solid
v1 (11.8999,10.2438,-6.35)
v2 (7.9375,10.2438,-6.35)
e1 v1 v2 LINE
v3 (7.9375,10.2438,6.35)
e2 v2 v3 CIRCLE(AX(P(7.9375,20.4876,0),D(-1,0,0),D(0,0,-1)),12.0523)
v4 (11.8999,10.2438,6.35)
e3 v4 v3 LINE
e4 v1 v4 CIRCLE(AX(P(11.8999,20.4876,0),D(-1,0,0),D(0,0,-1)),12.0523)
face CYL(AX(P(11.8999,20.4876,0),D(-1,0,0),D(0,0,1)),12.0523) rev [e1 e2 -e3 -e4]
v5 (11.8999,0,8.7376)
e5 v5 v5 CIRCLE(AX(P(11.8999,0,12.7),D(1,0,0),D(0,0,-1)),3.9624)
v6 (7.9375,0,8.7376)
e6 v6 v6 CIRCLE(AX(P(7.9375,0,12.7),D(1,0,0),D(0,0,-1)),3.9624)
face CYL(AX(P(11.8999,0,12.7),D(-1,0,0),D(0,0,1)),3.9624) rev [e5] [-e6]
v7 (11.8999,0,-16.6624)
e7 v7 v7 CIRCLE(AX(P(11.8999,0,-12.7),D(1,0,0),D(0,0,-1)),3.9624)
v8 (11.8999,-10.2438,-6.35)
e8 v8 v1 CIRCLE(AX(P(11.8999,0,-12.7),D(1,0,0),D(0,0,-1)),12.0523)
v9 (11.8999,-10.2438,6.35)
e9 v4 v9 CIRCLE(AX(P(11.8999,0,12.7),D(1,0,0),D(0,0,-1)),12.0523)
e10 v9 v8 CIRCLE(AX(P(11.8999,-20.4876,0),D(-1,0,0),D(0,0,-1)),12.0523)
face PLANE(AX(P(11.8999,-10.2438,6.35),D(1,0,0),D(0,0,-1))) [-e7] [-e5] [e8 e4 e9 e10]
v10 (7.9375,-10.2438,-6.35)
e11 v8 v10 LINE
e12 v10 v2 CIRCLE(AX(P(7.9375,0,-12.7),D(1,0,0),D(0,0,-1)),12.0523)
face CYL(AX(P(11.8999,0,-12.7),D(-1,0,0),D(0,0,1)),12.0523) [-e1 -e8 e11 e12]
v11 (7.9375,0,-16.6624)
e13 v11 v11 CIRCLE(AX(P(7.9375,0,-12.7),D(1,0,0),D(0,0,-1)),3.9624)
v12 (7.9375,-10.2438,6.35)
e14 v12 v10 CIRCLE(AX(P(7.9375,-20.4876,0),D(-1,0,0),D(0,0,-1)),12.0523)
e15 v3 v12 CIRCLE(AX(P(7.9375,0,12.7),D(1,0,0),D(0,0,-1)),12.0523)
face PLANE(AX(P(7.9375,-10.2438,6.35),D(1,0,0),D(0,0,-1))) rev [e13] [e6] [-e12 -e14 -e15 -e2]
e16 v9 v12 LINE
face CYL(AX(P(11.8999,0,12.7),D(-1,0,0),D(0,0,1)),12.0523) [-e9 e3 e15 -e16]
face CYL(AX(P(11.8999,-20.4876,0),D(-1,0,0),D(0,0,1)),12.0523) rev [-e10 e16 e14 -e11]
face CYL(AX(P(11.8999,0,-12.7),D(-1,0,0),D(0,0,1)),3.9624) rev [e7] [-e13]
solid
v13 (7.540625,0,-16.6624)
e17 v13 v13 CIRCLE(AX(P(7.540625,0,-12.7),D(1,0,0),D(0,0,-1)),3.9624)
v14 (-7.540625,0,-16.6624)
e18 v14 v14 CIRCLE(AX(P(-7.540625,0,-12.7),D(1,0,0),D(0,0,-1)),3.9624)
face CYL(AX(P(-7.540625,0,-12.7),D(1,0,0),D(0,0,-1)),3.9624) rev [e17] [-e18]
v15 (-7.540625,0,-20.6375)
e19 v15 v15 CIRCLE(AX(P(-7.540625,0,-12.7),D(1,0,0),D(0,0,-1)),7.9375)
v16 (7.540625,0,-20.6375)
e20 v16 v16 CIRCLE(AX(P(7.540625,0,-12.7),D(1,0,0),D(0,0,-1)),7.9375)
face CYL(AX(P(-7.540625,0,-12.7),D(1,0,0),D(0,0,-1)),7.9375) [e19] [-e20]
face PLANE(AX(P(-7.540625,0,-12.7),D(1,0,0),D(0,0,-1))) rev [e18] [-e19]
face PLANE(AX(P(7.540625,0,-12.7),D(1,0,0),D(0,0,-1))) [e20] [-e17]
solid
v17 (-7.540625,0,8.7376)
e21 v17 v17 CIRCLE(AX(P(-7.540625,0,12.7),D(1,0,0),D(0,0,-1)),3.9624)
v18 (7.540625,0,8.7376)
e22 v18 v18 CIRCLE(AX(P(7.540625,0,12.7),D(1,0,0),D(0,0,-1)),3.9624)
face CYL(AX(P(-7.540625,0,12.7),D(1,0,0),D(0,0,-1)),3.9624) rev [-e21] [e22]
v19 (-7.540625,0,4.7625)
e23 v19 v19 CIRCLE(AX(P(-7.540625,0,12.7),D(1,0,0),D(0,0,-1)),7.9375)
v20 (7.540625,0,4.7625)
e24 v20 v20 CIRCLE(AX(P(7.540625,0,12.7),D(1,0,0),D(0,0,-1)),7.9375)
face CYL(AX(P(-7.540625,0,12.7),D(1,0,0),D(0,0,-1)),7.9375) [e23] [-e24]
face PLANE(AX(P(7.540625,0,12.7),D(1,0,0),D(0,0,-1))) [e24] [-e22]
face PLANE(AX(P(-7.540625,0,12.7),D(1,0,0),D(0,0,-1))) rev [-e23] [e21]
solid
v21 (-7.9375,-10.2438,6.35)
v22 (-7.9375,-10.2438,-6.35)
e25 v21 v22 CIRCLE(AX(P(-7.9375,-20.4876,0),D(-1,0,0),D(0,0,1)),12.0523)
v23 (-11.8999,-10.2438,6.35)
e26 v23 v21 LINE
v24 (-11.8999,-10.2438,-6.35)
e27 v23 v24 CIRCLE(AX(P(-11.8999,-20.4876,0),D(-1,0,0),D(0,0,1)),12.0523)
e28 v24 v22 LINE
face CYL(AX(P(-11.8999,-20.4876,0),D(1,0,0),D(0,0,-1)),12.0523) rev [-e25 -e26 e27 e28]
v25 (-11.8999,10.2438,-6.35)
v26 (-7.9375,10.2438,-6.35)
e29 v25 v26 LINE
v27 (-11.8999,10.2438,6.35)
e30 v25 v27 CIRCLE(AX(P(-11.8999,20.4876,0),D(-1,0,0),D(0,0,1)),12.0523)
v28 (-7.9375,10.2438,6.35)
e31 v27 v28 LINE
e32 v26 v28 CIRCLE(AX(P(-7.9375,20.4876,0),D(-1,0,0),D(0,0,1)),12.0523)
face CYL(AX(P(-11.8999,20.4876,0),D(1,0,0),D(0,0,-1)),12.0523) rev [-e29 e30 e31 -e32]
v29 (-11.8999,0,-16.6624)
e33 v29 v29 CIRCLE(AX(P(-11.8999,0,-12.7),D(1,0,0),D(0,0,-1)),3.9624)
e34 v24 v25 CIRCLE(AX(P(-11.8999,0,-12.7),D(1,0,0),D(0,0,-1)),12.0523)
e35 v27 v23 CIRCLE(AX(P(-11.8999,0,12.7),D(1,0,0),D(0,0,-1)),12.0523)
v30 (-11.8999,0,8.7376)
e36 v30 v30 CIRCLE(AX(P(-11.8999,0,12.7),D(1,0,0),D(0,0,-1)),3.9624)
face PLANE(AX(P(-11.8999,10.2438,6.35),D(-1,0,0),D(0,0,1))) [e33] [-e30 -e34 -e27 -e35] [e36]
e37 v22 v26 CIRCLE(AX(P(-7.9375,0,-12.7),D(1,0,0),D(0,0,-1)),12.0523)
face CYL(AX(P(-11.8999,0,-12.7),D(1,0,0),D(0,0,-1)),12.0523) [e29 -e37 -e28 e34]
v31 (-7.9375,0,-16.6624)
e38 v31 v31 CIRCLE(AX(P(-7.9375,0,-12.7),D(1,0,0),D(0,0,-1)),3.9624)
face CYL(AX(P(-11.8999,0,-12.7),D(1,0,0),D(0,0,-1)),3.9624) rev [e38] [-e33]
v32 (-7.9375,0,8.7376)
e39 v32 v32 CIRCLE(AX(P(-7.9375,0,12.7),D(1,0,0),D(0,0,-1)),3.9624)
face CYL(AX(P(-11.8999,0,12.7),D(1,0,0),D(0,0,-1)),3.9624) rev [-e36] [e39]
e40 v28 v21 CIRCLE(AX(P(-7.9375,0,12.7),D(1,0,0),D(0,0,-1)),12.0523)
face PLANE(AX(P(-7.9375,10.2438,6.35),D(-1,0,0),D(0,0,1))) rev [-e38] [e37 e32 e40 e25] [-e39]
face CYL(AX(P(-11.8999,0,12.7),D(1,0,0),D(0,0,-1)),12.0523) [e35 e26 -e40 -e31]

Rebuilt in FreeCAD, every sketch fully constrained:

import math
import FreeCAD as App
import Part
import Sketcher

V = App.Vector
Q = App.Units.Quantity

doc = App.newDocument("Part")
params = doc.addObject("Spreadsheet::Sheet", "Params")
for row, (alias, value) in enumerate([
    ("sketch1_diameter", "0.312 in"),
    ("pad1_length", "0.156 in"),
    ("sketch2_diameter", "0.312 in"),
    ("pad2_length", "0.156 in"),
    ("sketch3_diameter", "0.625 in"),
    ("sketch3_diameter2", "0.312 in"),
    ("pad3_length", "0.296875 in"),
    ("pad3_length2", "0.296875 in"),
    ("sketch4_diameter", "0.625 in"),
    ("sketch4_diameter2", "0.312 in"),
    ("pad4_length", "0.296875 in"),
    ("pad4_length2", "0.296875 in"),
], start=1):
    params.set(f"A{row}", alias)
    params.set(f"B{row}", "=" + value)
    params.setAlias(f"B{row}", alias)

body = doc.addObject("PartDesign::Body", "Body")

# Sketch on YZ plane
sketch1 = doc.addObject("Sketcher::SketchObject", "Sketch")
body.addObject(sketch1)
sketch1.AttachmentSupport = (doc.YZ_Plane, [""])
sketch1.MapMode = "FlatFace"
sketch1.AttachmentOffset = App.Placement(V(0, 0, -0.3125 * 25.4), App.Rotation())
sketch1.addGeometry([
    Part.ArcOfCircle(Part.Circle(V(0, 12.7, 0), V(0, 0, 1), 12.1), math.radians(-32), math.radians(212)),  # 0
    Part.ArcOfCircle(Part.Circle(V(-20.5, 0, 0), V(0, 0, 1), 12.1), math.radians(-32), math.radians(32)),  # 1
    Part.ArcOfCircle(Part.Circle(V(0, -12.7, 0), V(0, 0, 1), 12.1), math.radians(148), math.radians(392)),  # 2
    Part.ArcOfCircle(Part.Circle(V(20.5, 0, 0), V(0, 0, 1), 12.1), math.radians(148), math.radians(212)),  # 3
    Part.Circle(V(0, 12.7, 0), V(0, 0, 1), 4),  # 4
    Part.Circle(V(0, -12.7, 0), V(0, 0, 1), 4),  # 5
], False)
sketch1.addConstraint([
    Sketcher.Constraint("Tangent", 0, 2, 1, 2),
    Sketcher.Constraint("Tangent", 1, 1, 2, 1),
    Sketcher.Constraint("Tangent", 2, 2, 3, 2),
    Sketcher.Constraint("Tangent", 3, 1, 0, 1),
    Sketcher.Constraint("Coincident", 4, 3, 0, 3),
    Sketcher.Constraint("Coincident", 5, 3, 2, 3),
    Sketcher.Constraint("Equal", 0, 1),
    Sketcher.Constraint("Equal", 1, 2),
    Sketcher.Constraint("Equal", 2, 3),
    Sketcher.Constraint("Equal", 4, 5),
    Sketcher.Constraint("Symmetric", 0, 3, 2, 3, -1, 1),
    Sketcher.Constraint("PointOnObject", 0, 3, -2),
    Sketcher.Constraint("Diameter", 4, Q("0.312 in")),
    Sketcher.Constraint("DistanceY", 2, 3, 0, 3, Q("1 in")),
    Sketcher.Constraint("Radius", 0, Q("0.4745 in")),
])
sketch1.setExpression("Constraints[12]", "Params.sketch1_diameter")
pad1 = doc.addObject("PartDesign::Pad", "Pad")
body.addObject(pad1)
pad1.Profile = sketch1
pad1.setExpression("Length", "Params.pad1_length")
pad1.Reversed = True
body2 = doc.addObject("PartDesign::Body", "Body001")

# Sketch on YZ plane
sketch2 = doc.addObject("Sketcher::SketchObject", "Sketch001")
body2.addObject(sketch2)
sketch2.AttachmentSupport = (doc.getObject("YZ_Plane001"), [""])
sketch2.MapMode = "FlatFace"
sketch2.AttachmentOffset = App.Placement(V(0, 0, 0.3125 * 25.4), App.Rotation())
sketch2.addGeometry([
    Part.ArcOfCircle(Part.Circle(V(20.5, 0, 0), V(0, 0, 1), 12.1), math.radians(148), math.radians(212)),  # 0
    Part.ArcOfCircle(Part.Circle(V(0, 12.7, 0), V(0, 0, 1), 12.1), math.radians(-32), math.radians(212)),  # 1
    Part.ArcOfCircle(Part.Circle(V(-20.5, 0, 0), V(0, 0, 1), 12.1), math.radians(-32), math.radians(32)),  # 2
    Part.ArcOfCircle(Part.Circle(V(0, -12.7, 0), V(0, 0, 1), 12.1), math.radians(148), math.radians(392)),  # 3
    Part.Circle(V(0, -12.7, 0), V(0, 0, 1), 4),  # 4
    Part.Circle(V(0, 12.7, 0), V(0, 0, 1), 4),  # 5
], False)
sketch2.addConstraint([
    Sketcher.Constraint("Tangent", 0, 1, 1, 1),
    Sketcher.Constraint("Tangent", 1, 2, 2, 2),
    Sketcher.Constraint("Tangent", 2, 1, 3, 1),
    Sketcher.Constraint("Tangent", 3, 2, 0, 2),
    Sketcher.Constraint("Coincident", 4, 3, 3, 3),
    Sketcher.Constraint("Coincident", 5, 3, 1, 3),
    Sketcher.Constraint("Equal", 0, 1),
    Sketcher.Constraint("Equal", 1, 2),
    Sketcher.Constraint("Equal", 2, 3),
    Sketcher.Constraint("Equal", 4, 5),
    Sketcher.Constraint("Symmetric", 0, 3, 2, 3, -1, 1),
    Sketcher.Constraint("PointOnObject", 0, 3, -1),
    Sketcher.Constraint("Diameter", 4, Q("0.312 in")),
    Sketcher.Constraint("DistanceY", 3, 3, 1, 3, Q("1 in")),
    Sketcher.Constraint("Radius", 0, Q("0.4745 in")),
])
sketch2.setExpression("Constraints[12]", "Params.sketch2_diameter")
pad2 = doc.addObject("PartDesign::Pad", "Pad001")
body2.addObject(pad2)
pad2.Profile = sketch2
pad2.setExpression("Length", "Params.pad2_length")
body3 = doc.addObject("PartDesign::Body", "Body002")

# Sketch on YZ plane
sketch3 = doc.addObject("Sketcher::SketchObject", "Sketch002")
body3.addObject(sketch3)
sketch3.AttachmentSupport = (doc.getObject("YZ_Plane002"), [""])
sketch3.MapMode = "FlatFace"
sketch3.addGeometry([
    Part.Circle(V(0, -12.7, 0), V(0, 0, 1), 7.9),
    Part.Circle(V(0, -12.7, 0), V(0, 0, 1), 4),
], False)
sketch3.addConstraint([
    Sketcher.Constraint("Coincident", 1, 3, 0, 3),
    Sketcher.Constraint("PointOnObject", 0, 3, -2),
    Sketcher.Constraint("Diameter", 0, Q("0.625 in")),
    Sketcher.Constraint("Diameter", 1, Q("0.312 in")),
    Sketcher.Constraint("DistanceY", 0, 3, -1, 1, Q("0.5 in")),
])
sketch3.setExpression("Constraints[2]", "Params.sketch3_diameter")
sketch3.setExpression("Constraints[3]", "Params.sketch3_diameter2")
pad3 = doc.addObject("PartDesign::Pad", "Pad002")
body3.addObject(pad3)
pad3.Profile = sketch3
pad3.Type = "TwoLengths"
pad3.setExpression("Length", "Params.pad3_length")
pad3.setExpression("Length2", "Params.pad3_length2")
body4 = doc.addObject("PartDesign::Body", "Body003")

# Sketch on YZ plane
sketch4 = doc.addObject("Sketcher::SketchObject", "Sketch003")
body4.addObject(sketch4)
sketch4.AttachmentSupport = (doc.getObject("YZ_Plane003"), [""])
sketch4.MapMode = "FlatFace"
sketch4.addGeometry([
    Part.Circle(V(0, 12.7, 0), V(0, 0, 1), 7.9),
    Part.Circle(V(0, 12.7, 0), V(0, 0, 1), 4),
], False)
sketch4.addConstraint([
    Sketcher.Constraint("Coincident", 1, 3, 0, 3),
    Sketcher.Constraint("PointOnObject", 0, 3, -2),
    Sketcher.Constraint("Diameter", 0, Q("0.625 in")),
    Sketcher.Constraint("Diameter", 1, Q("0.312 in")),
    Sketcher.Constraint("DistanceY", -1, 1, 0, 3, Q("0.5 in")),
])
sketch4.setExpression("Constraints[2]", "Params.sketch4_diameter")
sketch4.setExpression("Constraints[3]", "Params.sketch4_diameter2")
pad4 = doc.addObject("PartDesign::Pad", "Pad003")
body4.addObject(pad4)
pad4.Profile = sketch4
pad4.Type = "TwoLengths"
pad4.setExpression("Length", "Params.pad4_length")
pad4.setExpression("Length2", "Params.pad4_length2")

doc.recompute()
